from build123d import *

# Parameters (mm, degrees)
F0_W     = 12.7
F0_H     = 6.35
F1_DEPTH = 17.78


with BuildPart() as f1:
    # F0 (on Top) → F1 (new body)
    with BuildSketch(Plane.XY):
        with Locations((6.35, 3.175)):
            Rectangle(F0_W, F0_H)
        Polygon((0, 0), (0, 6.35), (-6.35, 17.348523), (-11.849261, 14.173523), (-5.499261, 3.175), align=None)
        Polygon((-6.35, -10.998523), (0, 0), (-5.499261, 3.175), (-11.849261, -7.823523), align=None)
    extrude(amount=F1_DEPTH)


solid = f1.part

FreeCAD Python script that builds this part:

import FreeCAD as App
import Part
import Sketcher

V = App.Vector
Q = App.Units.Quantity

doc = App.newDocument("Part")
params = doc.addObject("Spreadsheet::Sheet", "Params")
for row, (alias, value) in enumerate([
    ("sketch1_width", "0.5 in"),
    ("sketch1_length", "0.5 in"),
    ("sketch1_height", "0.25 in"),
    ("pad1_length", "0.7 in"),
], start=1):
    params.set(f"A{row}", alias)
    params.set(f"B{row}", "=" + value)
    params.setAlias(f"B{row}", alias)

body = doc.addObject("PartDesign::Body", "Body")

sketch1 = body.newObject("Sketcher::SketchObject", "Sketch")
sketch1.AttachmentSupport = (doc.getObject("XY_Plane"), [""])
sketch1.MapMode = "FlatFace"
sketch1.addGeometry(Part.LineSegment(V(0, 0, 0), V(13, 0, 0)), False)
sketch1.addGeometry(Part.LineSegment(V(13, 0, 0), V(13, 6, 0)), False)
sketch1.addGeometry(Part.LineSegment(V(13, 6, 0), V(0, 6, 0)), False)
sketch1.addGeometry(Part.LineSegment(V(0, 6, 0), V(-6, 17, 0)), False)
sketch1.addGeometry(Part.LineSegment(V(-6, 17, 0), V(-12, 14, 0)), False)
sketch1.addGeometry(Part.LineSegment(V(-12, 14, 0), V(-5, 3, 0)), False)
sketch1.addGeometry(Part.LineSegment(V(-5, 3, 0), V(-12, -8, 0)), False)
sketch1.addGeometry(Part.LineSegment(V(-12, -8, 0), V(-6, -11, 0)), False)
sketch1.addGeometry(Part.LineSegment(V(-6, -11, 0), V(0, 0, 0)), False)
sketch1.addConstraint(Sketcher.Constraint("Coincident", 0, 2, 1, 1))
sketch1.addConstraint(Sketcher.Constraint("Coincident", 1, 2, 2, 1))
sketch1.addConstraint(Sketcher.Constraint("Coincident", 2, 2, 3, 1))
sketch1.addConstraint(Sketcher.Constraint("Coincident", 3, 2, 4, 1))
sketch1.addConstraint(Sketcher.Constraint("Coincident", 4, 2, 5, 1))
sketch1.addConstraint(Sketcher.Constraint("Coincident", 5, 2, 6, 1))
sketch1.addConstraint(Sketcher.Constraint("Coincident", 6, 2, 7, 1))
sketch1.addConstraint(Sketcher.Constraint("Coincident", 7, 2, 8, 1))
sketch1.addConstraint(Sketcher.Constraint("Coincident", 8, 2, 0, 1))
sketch1.addConstraint(Sketcher.Constraint("Horizontal", 0))
sketch1.addConstraint(Sketcher.Constraint("Vertical", 1))
sketch1.addConstraint(Sketcher.Constraint("Horizontal", 2))
sketch1.addConstraint(Sketcher.Constraint("Coincident", 8, 2, -1, 1))
sketch1.addConstraint(Sketcher.Constraint("PointOnObject", 2, 2, -2))
sketch1.addConstraint(Sketcher.Constraint("Perpendicular", 3, 4))
sketch1.addConstraint(Sketcher.Constraint("Perpendicular", 4, 5))
sketch1.addConstraint(Sketcher.Constraint("Perpendicular", 6, 7))
sketch1.addConstraint(Sketcher.Constraint("Perpendicular", 7, 8))
sketch1.addConstraint(Sketcher.Constraint("Vertical", 4, 2, 6, 2))
sketch1.addConstraint(Sketcher.Constraint("Vertical", 3, 2, 7, 2))
sketch1.addConstraint(Sketcher.Constraint("Equal", 3, 5))
sketch1.addConstraint(Sketcher.Constraint("Equal", 5, 6))
sketch1.addConstraint(Sketcher.Constraint("DistanceX", 0, 1, 0, 2, Q("0.5 in")))
sketch1.addConstraint(Sketcher.Constraint("Angle", 3, Q("119.999999 deg")))
sketch1.addConstraint(Sketcher.Constraint("Distance", 3, Q("0.5 in")))
sketch1.addConstraint(Sketcher.Constraint("DistanceY", 1, 1, 1, 2, Q("0.25 in")))
sketch1.setExpression("Constraints[22]", "Params.sketch1_width")
sketch1.setExpression("Constraints[24]", "Params.sketch1_length")
sketch1.setExpression("Constraints[25]", "Params.sketch1_height")
pad1 = body.newObject("PartDesign::Pad", "Pad")
pad1.Profile = sketch1
pad1.setExpression("Length", "Params.pad1_length")

doc.recompute()
